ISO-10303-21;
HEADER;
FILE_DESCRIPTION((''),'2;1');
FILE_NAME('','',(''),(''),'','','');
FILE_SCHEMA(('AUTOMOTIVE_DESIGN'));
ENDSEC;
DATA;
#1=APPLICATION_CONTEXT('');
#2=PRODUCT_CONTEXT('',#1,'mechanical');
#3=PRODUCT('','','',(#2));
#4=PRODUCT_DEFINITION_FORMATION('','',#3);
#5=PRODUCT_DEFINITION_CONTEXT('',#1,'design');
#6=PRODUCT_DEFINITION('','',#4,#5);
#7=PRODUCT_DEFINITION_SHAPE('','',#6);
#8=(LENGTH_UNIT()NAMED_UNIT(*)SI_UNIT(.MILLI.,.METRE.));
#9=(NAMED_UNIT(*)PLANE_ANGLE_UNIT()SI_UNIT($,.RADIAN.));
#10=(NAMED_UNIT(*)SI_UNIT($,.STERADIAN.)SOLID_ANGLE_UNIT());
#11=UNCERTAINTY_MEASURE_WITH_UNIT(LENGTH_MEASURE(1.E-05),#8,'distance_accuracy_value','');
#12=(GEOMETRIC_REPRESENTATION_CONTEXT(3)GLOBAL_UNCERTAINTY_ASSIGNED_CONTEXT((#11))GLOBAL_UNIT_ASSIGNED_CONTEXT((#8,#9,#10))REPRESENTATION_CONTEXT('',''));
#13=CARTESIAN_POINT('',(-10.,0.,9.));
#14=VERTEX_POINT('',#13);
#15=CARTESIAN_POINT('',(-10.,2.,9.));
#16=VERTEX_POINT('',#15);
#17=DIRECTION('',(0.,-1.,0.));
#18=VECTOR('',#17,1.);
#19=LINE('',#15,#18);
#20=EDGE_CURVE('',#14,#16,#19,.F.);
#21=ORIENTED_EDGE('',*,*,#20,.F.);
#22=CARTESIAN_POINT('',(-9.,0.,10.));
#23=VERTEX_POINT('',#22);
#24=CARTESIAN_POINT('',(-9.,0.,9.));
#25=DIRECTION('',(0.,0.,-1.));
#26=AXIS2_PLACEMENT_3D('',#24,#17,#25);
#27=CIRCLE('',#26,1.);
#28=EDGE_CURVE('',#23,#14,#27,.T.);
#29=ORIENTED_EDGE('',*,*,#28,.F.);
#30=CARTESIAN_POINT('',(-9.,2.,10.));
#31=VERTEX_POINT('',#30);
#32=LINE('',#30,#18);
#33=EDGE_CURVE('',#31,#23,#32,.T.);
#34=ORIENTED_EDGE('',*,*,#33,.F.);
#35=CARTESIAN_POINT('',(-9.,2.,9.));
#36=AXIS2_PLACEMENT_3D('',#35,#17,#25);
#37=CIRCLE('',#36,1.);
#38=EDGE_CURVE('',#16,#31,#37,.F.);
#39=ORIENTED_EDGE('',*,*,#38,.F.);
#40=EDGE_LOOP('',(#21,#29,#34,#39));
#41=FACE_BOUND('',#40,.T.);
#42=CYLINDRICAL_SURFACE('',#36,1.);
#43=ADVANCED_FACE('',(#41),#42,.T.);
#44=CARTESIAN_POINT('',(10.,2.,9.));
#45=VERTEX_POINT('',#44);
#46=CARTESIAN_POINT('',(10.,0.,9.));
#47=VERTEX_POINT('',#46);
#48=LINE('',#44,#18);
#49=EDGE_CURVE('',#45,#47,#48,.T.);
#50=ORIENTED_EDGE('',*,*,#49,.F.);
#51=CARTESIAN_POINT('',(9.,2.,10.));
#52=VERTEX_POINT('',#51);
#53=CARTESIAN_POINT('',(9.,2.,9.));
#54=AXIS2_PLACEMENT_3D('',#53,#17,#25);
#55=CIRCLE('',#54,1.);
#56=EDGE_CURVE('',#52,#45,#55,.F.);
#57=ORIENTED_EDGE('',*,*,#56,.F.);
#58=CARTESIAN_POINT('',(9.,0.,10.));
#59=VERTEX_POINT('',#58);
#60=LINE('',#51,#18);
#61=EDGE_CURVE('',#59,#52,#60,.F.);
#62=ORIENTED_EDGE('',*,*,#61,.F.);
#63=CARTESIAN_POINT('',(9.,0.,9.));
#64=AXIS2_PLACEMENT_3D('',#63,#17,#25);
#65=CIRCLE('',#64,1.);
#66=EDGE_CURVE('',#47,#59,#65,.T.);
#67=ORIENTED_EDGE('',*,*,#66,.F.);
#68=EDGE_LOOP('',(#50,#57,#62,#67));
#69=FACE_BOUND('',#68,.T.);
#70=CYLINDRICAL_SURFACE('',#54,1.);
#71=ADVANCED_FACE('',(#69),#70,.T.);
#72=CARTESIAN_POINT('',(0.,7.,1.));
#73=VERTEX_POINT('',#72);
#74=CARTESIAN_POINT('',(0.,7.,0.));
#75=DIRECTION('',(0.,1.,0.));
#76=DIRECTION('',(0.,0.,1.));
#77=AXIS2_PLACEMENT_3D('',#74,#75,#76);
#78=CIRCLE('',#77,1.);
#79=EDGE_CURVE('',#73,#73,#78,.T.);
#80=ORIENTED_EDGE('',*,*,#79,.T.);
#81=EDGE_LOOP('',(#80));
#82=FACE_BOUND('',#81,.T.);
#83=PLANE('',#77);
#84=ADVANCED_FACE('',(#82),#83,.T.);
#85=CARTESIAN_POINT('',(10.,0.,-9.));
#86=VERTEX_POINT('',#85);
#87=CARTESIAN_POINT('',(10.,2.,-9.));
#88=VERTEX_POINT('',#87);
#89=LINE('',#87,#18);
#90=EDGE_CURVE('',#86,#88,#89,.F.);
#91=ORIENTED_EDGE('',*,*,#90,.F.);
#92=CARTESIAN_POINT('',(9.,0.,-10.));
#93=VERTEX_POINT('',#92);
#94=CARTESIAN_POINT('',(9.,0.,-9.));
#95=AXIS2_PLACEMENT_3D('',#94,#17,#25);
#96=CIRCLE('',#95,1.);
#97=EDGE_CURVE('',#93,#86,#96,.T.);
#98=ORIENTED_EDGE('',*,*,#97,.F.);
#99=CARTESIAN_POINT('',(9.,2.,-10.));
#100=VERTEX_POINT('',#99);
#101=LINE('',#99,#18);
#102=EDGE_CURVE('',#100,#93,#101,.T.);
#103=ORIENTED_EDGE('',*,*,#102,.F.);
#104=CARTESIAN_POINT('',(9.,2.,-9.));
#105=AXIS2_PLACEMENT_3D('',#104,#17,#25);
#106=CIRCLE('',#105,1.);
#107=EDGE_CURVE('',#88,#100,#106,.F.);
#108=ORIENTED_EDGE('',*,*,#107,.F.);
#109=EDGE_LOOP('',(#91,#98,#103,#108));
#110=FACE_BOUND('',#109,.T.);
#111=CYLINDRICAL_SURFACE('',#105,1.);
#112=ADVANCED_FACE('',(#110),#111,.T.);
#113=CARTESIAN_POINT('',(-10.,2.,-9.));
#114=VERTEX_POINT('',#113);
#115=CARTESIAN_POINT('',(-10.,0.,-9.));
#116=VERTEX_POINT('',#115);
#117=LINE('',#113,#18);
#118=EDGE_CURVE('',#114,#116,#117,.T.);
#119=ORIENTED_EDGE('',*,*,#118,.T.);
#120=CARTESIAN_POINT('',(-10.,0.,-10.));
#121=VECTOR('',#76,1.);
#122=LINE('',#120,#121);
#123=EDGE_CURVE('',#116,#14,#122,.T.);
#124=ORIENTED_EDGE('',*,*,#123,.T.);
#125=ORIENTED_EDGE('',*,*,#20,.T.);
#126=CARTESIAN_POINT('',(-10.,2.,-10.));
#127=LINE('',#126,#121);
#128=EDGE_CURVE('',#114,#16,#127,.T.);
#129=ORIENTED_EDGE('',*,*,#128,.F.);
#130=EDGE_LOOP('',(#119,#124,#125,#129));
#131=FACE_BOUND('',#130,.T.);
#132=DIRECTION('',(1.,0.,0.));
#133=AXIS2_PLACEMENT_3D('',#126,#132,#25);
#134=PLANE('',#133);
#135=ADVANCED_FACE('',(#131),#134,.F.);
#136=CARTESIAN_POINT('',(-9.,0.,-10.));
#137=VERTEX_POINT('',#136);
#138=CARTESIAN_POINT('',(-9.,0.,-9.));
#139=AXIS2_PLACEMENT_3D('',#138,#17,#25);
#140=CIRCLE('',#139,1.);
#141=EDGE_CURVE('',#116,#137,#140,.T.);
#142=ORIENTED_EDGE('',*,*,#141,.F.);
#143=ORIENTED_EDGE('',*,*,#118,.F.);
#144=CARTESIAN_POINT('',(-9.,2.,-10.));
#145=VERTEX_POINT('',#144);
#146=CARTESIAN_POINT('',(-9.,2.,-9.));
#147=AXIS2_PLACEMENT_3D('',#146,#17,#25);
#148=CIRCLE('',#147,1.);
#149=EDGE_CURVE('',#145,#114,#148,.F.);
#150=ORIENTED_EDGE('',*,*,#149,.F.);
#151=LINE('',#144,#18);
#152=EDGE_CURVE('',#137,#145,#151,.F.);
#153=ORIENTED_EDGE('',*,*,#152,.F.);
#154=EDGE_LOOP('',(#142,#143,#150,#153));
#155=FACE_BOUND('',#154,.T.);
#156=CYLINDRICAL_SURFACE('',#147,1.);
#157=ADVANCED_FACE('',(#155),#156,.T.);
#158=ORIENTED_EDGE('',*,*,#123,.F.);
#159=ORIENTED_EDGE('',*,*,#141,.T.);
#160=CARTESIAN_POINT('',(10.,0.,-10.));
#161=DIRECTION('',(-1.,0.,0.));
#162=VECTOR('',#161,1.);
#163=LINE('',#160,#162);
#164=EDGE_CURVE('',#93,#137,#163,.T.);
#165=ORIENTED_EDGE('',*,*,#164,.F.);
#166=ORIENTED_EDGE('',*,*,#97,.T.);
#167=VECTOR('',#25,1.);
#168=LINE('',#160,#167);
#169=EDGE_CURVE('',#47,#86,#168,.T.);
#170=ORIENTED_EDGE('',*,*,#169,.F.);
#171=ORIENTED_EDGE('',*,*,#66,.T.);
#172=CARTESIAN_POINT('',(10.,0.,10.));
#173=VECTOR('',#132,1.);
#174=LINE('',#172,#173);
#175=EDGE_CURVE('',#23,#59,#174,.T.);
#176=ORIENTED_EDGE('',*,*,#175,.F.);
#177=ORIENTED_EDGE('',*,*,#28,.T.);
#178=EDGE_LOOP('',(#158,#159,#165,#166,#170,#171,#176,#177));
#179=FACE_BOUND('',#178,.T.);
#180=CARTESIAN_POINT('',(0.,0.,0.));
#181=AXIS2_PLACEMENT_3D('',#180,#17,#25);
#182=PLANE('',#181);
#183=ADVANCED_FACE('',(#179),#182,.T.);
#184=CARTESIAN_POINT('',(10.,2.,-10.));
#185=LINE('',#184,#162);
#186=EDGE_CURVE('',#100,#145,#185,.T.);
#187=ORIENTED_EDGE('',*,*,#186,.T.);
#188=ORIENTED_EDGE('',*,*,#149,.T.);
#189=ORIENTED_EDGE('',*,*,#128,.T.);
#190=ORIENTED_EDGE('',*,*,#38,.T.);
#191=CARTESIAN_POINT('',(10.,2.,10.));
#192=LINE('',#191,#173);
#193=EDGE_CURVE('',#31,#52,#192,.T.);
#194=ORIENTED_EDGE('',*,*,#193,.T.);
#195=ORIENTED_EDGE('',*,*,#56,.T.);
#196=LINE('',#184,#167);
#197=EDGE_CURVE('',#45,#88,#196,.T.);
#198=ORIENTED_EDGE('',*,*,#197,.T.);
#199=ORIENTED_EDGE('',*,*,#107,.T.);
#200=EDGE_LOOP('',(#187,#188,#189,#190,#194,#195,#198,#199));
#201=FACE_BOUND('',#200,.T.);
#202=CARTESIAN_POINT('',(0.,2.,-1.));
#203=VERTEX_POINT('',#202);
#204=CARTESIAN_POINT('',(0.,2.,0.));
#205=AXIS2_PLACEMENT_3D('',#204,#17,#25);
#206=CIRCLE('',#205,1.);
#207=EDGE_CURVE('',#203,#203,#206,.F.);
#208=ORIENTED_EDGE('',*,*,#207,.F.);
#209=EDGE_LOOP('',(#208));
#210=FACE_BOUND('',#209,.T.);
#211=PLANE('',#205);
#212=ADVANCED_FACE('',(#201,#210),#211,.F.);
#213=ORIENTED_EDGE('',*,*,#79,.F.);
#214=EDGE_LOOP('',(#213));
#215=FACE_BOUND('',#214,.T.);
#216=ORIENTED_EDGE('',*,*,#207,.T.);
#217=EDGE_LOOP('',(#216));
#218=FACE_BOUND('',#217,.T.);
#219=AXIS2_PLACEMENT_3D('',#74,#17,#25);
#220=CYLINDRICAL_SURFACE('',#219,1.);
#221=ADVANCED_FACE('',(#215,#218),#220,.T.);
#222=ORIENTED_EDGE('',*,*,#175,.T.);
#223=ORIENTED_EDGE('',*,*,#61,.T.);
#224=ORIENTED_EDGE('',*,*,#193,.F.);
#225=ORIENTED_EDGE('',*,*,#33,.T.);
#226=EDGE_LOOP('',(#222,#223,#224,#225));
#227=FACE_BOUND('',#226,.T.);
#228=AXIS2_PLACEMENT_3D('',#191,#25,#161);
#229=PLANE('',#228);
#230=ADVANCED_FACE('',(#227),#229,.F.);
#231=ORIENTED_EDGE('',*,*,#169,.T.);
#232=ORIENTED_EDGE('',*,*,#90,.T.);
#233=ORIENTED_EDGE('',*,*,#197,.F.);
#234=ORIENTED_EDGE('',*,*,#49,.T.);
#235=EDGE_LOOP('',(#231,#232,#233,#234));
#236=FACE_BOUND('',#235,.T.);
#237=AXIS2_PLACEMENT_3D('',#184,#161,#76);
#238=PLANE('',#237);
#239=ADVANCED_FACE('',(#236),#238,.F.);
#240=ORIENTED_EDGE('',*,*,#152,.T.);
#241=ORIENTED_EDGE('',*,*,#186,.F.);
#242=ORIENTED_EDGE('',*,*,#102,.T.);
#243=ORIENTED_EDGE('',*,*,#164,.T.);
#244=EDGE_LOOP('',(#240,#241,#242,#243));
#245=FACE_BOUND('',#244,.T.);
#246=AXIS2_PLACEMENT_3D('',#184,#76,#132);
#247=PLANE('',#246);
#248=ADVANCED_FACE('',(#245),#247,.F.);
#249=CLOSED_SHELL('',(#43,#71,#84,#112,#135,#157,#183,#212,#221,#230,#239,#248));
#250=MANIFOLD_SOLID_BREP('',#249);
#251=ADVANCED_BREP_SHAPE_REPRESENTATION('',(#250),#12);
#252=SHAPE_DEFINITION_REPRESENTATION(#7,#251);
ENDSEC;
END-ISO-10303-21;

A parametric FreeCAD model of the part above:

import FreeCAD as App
import Part
import Sketcher

V = App.Vector


def edges_at(feature, points):
    """Names of the edges that pass closest to the given points."""
    edges = feature.Shape.Edges
    near = lambda p: min(range(len(edges)), key=lambda i: edges[i].distToShape(Part.Vertex(*p))[0])
    return sorted({f"Edge{near(p) + 1}" for p in points})


def add_polygon(sketch, points):
    """Adds a closed chain of lines whose ends are joined by coincident constraints."""
    first, n = sketch.GeometryCount, len(points)
    for a, b in zip(points, points[1:] + points[:1]):
        sketch.addGeometry(Part.LineSegment(App.Vector(*a, 0), App.Vector(*b, 0)), False)
    for i in range(n):
        sketch.addConstraint(Sketcher.Constraint("Coincident", first + i, 2, first + (i + 1) % n, 1))

doc = App.newDocument("Part")
body = doc.addObject("PartDesign::Body", "Body")

# Sketch on XZ plane
sketch1 = doc.addObject("Sketcher::SketchObject", "Sketch")
body.addObject(sketch1)
sketch1.AttachmentSupport = (doc.XZ_Plane, [""])
sketch1.MapMode = "FlatFace"
add_polygon(sketch1, [(-10, -10), (-10, 10), (10, 10), (10, -10)])  # lines 0-3
sketch1.addConstraint([
    Sketcher.Constraint("Vertical", 0),
    Sketcher.Constraint("Horizontal", 1),
    Sketcher.Constraint("Vertical", 2),
    Sketcher.Constraint("Horizontal", 3),
    Sketcher.Constraint("Symmetric", 0, 2, 2, 2, -1, 1),
    Sketcher.Constraint("Equal", 3, 0),
    Sketcher.Constraint("DistanceX", 1, 1, 1, 2, 20.0),
])
pad1 = doc.addObject("PartDesign::Pad", "Pad")
body.addObject(pad1)
pad1.Profile = sketch1
pad1.Length = 2
pad1.Reversed = True

# Sketch on XZ plane
sketch2 = doc.addObject("Sketcher::SketchObject", "Sketch001")
body.addObject(sketch2)
sketch2.AttachmentSupport = (doc.XZ_Plane, [""])
sketch2.MapMode = "FlatFace"
sketch2.AttachmentOffset = App.Placement(V(0, 0, -2), App.Rotation())
sketch2.addGeometry(Part.Circle(V(0, 0, 0), V(0, 0, 1), 1), False)
sketch2.addConstraint([
    Sketcher.Constraint("Coincident", 0, 3, -1, 1),
    Sketcher.Constraint("Diameter", 0, 2.0),
])
pad2 = doc.addObject("PartDesign::Pad", "Pad001")
body.addObject(pad2)
pad2.Profile = sketch2
pad2.Length = 5
pad2.Reversed = True
doc.recompute()

fillet = doc.addObject("PartDesign::Fillet", "Fillet")
body.addObject(fillet)
fillet.Base = (pad2, edges_at(pad2, [
    (-10, 1, -10),
    (10, 1, -10),
    (10, 1, 10),
    (-10, 1, 10),
]))
fillet.Radius = 1

doc.recompute()
